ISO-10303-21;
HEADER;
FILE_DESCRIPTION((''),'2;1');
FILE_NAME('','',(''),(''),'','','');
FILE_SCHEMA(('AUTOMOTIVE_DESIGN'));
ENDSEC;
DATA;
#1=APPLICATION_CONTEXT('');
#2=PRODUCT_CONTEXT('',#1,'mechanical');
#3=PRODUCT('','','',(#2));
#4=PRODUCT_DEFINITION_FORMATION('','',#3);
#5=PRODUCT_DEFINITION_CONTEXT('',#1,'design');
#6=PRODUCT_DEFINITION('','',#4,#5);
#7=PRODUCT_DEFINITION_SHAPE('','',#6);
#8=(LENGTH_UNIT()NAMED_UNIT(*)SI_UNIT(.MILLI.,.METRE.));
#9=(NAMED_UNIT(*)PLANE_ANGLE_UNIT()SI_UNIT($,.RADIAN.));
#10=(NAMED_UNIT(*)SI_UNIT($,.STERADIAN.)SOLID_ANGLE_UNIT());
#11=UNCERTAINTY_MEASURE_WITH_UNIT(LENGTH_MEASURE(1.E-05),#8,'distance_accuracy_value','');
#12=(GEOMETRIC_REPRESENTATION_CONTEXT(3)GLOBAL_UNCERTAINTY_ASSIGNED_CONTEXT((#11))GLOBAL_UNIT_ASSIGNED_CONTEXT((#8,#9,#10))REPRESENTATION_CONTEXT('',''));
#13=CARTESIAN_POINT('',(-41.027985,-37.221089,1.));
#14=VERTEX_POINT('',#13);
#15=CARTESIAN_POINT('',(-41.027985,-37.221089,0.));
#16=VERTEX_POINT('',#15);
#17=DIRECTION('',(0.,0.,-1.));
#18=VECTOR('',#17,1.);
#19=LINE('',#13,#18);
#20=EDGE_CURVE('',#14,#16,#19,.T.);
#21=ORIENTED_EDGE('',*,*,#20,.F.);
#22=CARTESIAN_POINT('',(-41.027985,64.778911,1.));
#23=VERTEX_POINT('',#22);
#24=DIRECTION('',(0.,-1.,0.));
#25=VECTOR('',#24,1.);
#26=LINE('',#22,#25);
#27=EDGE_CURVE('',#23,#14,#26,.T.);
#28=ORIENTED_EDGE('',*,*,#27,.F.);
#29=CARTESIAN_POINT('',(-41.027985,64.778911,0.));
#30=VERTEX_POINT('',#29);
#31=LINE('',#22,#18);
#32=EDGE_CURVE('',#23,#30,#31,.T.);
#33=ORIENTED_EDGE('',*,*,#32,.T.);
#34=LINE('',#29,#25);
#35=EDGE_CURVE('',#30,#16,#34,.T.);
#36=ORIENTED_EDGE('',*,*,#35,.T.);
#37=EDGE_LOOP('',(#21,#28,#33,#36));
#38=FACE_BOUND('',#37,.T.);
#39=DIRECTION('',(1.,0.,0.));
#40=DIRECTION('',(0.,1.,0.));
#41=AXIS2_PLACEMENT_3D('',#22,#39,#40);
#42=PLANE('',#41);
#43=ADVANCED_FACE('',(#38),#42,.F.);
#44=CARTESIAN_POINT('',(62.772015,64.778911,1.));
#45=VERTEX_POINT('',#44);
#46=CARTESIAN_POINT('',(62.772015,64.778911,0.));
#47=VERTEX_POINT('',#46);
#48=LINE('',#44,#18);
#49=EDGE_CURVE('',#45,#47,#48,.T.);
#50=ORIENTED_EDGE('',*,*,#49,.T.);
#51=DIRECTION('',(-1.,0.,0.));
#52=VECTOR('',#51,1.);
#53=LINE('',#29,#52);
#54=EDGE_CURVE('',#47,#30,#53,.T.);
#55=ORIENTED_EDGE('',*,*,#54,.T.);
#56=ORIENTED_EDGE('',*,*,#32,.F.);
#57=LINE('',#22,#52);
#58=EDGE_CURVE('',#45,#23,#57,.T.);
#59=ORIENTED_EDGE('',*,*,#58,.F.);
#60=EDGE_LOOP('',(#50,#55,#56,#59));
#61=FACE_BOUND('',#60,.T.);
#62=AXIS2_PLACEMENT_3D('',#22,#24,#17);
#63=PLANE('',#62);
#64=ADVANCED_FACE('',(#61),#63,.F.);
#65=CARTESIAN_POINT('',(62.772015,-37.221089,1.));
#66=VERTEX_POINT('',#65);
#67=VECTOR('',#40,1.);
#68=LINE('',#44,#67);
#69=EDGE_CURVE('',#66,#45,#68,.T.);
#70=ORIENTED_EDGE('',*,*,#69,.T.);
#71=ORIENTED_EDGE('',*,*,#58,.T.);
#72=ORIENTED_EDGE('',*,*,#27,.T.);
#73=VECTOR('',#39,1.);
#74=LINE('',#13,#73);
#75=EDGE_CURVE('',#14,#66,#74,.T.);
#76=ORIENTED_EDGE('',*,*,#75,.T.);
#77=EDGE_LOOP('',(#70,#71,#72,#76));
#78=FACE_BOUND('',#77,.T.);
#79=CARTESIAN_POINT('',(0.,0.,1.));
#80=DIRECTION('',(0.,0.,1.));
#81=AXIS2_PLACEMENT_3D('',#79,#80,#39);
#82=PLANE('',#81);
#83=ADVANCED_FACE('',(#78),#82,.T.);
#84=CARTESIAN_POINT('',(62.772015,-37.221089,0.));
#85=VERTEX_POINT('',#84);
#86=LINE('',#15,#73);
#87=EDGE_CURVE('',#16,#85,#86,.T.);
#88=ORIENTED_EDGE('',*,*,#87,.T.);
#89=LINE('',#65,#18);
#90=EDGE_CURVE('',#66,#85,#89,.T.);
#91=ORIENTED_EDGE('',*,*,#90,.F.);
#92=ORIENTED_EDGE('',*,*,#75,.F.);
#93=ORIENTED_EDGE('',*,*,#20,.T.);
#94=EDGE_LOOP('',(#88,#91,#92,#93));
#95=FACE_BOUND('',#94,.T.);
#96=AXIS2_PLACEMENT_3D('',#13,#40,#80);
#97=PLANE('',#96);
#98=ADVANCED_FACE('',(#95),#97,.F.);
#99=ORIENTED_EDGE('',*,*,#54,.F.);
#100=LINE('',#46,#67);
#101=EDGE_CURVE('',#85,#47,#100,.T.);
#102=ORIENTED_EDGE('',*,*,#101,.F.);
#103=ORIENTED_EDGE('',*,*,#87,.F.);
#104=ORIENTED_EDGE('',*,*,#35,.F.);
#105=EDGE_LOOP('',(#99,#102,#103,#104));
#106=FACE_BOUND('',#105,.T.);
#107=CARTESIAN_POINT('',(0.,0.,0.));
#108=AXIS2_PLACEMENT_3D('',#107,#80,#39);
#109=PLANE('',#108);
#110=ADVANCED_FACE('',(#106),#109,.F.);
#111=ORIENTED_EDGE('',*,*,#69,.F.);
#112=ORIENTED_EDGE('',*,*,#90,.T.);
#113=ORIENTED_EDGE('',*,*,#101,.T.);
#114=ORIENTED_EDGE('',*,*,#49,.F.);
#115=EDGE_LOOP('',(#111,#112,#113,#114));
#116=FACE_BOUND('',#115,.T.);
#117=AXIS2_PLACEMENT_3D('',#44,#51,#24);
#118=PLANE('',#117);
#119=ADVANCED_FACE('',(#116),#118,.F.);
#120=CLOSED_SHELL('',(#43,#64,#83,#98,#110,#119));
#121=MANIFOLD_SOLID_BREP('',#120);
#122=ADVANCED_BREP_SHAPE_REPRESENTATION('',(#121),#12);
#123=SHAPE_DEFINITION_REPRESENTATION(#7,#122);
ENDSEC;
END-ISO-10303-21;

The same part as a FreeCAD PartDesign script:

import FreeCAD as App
import Part
import Sketcher
from FreeCAD import Vector
Q = App.Units.Quantity

doc = App.newDocument("Part")
body = doc.addObject("PartDesign::Body", "Body")

# Sketch on XY plane
sketch1 = doc.addObject("Sketcher::SketchObject", "Sketch")
body.addObject(sketch1)
sketch1.AttachmentSupport = (doc.XY_Plane, [""])
sketch1.MapMode = "FlatFace"
sketch1.addGeometry(Part.LineSegment(Vector(-41, 65, 0), Vector(-41, -37, 0)), False)
sketch1.addGeometry(Part.LineSegment(Vector(-41, -37, 0), Vector(63, -37, 0)), False)
sketch1.addGeometry(Part.LineSegment(Vector(63, -37, 0), Vector(63, 65, 0)), False)
sketch1.addGeometry(Part.LineSegment(Vector(63, 65, 0), Vector(-41, 65, 0)), False)
sketch1.addConstraint(Sketcher.Constraint("Coincident", 0, 2, 1, 1))
sketch1.addConstraint(Sketcher.Constraint("Coincident", 1, 2, 2, 1))
sketch1.addConstraint(Sketcher.Constraint("Coincident", 2, 2, 3, 1))
sketch1.addConstraint(Sketcher.Constraint("Coincident", 3, 2, 0, 1))
sketch1.addConstraint(Sketcher.Constraint("Vertical", 0))
sketch1.addConstraint(Sketcher.Constraint("Horizontal", 1))
sketch1.addConstraint(Sketcher.Constraint("Vertical", 2))
sketch1.addConstraint(Sketcher.Constraint("Horizontal", 3))
sketch1.addConstraint(Sketcher.Constraint("DistanceY", 0, 2, 0, 1, Q("102 mm")))
sketch1.addConstraint(Sketcher.Constraint("DistanceX", 1, 1, 1, 2, Q("103.8 mm")))
sketch1.addConstraint(Sketcher.Constraint("DistanceY", 0, 2, -1, 1, Q("37.221089 mm")))
sketch1.addConstraint(Sketcher.Constraint("DistanceX", 0, 2, -1, 1, Q("41.027985 mm")))
pad1 = doc.addObject("PartDesign::Pad", "Pad")
body.addObject(pad1)
pad1.Profile = sketch1
pad1.Length = 1

doc.recompute()
